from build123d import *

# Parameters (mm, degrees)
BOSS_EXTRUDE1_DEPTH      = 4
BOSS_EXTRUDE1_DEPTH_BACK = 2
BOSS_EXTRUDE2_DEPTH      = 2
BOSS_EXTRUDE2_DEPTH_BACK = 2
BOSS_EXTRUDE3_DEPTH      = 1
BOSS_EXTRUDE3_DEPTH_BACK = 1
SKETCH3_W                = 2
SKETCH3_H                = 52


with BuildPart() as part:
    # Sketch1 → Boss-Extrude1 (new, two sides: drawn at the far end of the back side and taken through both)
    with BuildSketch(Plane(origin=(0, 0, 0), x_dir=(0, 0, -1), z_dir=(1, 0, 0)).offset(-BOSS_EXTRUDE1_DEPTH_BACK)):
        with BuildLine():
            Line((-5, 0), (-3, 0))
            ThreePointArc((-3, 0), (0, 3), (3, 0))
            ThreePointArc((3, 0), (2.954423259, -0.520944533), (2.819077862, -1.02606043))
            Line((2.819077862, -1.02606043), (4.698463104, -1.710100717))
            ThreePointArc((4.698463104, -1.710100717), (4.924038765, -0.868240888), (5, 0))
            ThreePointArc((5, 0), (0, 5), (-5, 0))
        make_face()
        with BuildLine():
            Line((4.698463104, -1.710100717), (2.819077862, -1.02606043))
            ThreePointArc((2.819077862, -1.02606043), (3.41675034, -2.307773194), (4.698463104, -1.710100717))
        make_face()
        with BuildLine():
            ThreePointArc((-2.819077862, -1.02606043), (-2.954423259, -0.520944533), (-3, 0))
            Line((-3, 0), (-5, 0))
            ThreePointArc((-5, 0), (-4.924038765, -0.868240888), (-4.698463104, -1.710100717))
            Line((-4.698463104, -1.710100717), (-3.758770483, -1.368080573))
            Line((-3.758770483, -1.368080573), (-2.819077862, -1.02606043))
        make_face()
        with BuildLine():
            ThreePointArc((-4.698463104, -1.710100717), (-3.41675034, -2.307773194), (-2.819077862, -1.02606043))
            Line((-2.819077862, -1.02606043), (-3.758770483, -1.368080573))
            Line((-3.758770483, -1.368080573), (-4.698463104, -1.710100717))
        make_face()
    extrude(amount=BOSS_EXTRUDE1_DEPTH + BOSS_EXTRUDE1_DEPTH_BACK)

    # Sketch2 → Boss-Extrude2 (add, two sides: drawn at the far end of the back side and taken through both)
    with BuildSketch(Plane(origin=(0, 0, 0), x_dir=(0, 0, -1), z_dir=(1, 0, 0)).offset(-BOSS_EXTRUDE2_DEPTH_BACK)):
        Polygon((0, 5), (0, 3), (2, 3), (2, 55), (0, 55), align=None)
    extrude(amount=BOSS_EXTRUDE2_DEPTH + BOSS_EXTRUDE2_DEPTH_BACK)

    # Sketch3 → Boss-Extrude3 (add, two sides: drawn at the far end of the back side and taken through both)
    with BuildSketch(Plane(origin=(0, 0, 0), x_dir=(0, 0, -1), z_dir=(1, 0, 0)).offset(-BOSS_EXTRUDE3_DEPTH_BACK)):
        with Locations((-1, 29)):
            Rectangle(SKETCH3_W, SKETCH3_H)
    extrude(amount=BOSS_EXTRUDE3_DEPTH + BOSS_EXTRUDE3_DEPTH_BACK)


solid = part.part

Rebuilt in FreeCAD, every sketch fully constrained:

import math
import FreeCAD as App
import Part
import Sketcher
from FreeCAD import Vector

doc = App.newDocument("Part")
body = doc.addObject("PartDesign::Body", "Body")

# Sketch on YZ plane
sketch1 = body.newObject("Sketcher::SketchObject", "Sketch")
sketch1.AttachmentSupport = (doc.getObject("YZ_Plane"), [""])
sketch1.MapMode = "FlatFace"
sketch1.addGeometry(Part.ArcOfCircle(Part.Circle(Vector(0, 0, 0), Vector(0, 0, 1), 3), math.radians(-90), math.radians(90)), False)
sketch1.addGeometry(Part.ArcOfCircle(Part.Circle(Vector(0, 0, 0), Vector(0, 0, 1), 3), math.radians(-110), math.radians(-90)), False)
sketch1.addGeometry(Part.ArcOfCircle(Part.Circle(Vector(-1.368081, -3.75877, 0), Vector(0, 0, 1), 1), math.radians(70), math.radians(250)), False)
sketch1.addGeometry(Part.ArcOfCircle(Part.Circle(Vector(0, 0, 0), Vector(0, 0, 1), 5), math.radians(-110), math.radians(-90)), False)
sketch1.addGeometry(Part.ArcOfCircle(Part.Circle(Vector(0, 0, 0), Vector(0, 0, 1), 5), math.radians(-90), math.radians(90)), False)
sketch1.addGeometry(Part.ArcOfCircle(Part.Circle(Vector(0, 0, 0), Vector(0, 0, 1), 5), math.radians(90), math.radians(110)), False)
sketch1.addGeometry(Part.ArcOfCircle(Part.Circle(Vector(-1.368081, 3.75877, 0), Vector(0, 0, 1), 1), math.radians(110), math.radians(290)), False)
sketch1.addGeometry(Part.ArcOfCircle(Part.Circle(Vector(0, 0, 0), Vector(0, 0, 1), 3), math.radians(90), math.radians(110)), False)
sketch1.addConstraint(Sketcher.Constraint("Tangent", 0, 1, 1, 2))
sketch1.addConstraint(Sketcher.Constraint("Tangent", 1, 1, 2, 1))
sketch1.addConstraint(Sketcher.Constraint("Tangent", 2, 2, 3, 1))
sketch1.addConstraint(Sketcher.Constraint("Tangent", 3, 2, 4, 1))
sketch1.addConstraint(Sketcher.Constraint("Tangent", 4, 2, 5, 1))
sketch1.addConstraint(Sketcher.Constraint("Tangent", 5, 2, 6, 1))
sketch1.addConstraint(Sketcher.Constraint("Tangent", 6, 2, 7, 2))
sketch1.addConstraint(Sketcher.Constraint("Tangent", 7, 1, 0, 2))
sketch1.addConstraint(Sketcher.Constraint("Coincident", 0, 3, -1, 1))
sketch1.addConstraint(Sketcher.Constraint("Coincident", 3, 3, -1, 1))
sketch1.addConstraint(Sketcher.Constraint("Equal", 0, 1))
sketch1.addConstraint(Sketcher.Constraint("Equal", 3, 4))
sketch1.addConstraint(Sketcher.Constraint("Equal", 4, 5))
sketch1.addConstraint(Sketcher.Constraint("Equal", 2, 6))
sketch1.addConstraint(Sketcher.Constraint("PointOnObject", 0, 1, -2))
sketch1.addConstraint(Sketcher.Constraint("PointOnObject", 3, 2, -2))
sketch1.addConstraint(Sketcher.Constraint("PointOnObject", 4, 2, -2))
sketch1.addConstraint(Sketcher.Constraint("PointOnObject", 7, 1, -2))
sketch1.addConstraint(Sketcher.Constraint("Vertical", 2, 3, 6, 3))
sketch1.addConstraint(Sketcher.Constraint("Radius", 0, 3.0))
sketch1.addConstraint(Sketcher.Constraint("Radius", 2, 1.0))
sketch1.addConstraint(Sketcher.Constraint("DistanceX", 2, 2, -1, 1, 1.710101))
pad1 = body.newObject("PartDesign::Pad", "Pad")
pad1.Profile = sketch1
pad1.Type = "TwoLengths"
pad1.Length = 4
pad1.Length2 = 2

# Sketch on YZ plane
sketch2 = body.newObject("Sketcher::SketchObject", "Sketch001")
sketch2.AttachmentSupport = (doc.getObject("YZ_Plane"), [""])
sketch2.MapMode = "FlatFace"
sketch2.addGeometry(Part.LineSegment(Vector(3, 0, 0), Vector(3, -2, 0)), False)
sketch2.addGeometry(Part.LineSegment(Vector(3, -2, 0), Vector(55, -2, 0)), False)
sketch2.addGeometry(Part.LineSegment(Vector(55, -2, 0), Vector(55, 0, 0)), False)
sketch2.addGeometry(Part.LineSegment(Vector(55, 0, 0), Vector(3, 0, 0)), False)
sketch2.addConstraint(Sketcher.Constraint("Coincident", 0, 2, 1, 1))
sketch2.addConstraint(Sketcher.Constraint("Coincident", 1, 2, 2, 1))
sketch2.addConstraint(Sketcher.Constraint("Coincident", 2, 2, 3, 1))
sketch2.addConstraint(Sketcher.Constraint("Coincident", 3, 2, 0, 1))
sketch2.addConstraint(Sketcher.Constraint("Vertical", 0))
sketch2.addConstraint(Sketcher.Constraint("Horizontal", 1))
sketch2.addConstraint(Sketcher.Constraint("Vertical", 2))
sketch2.addConstraint(Sketcher.Constraint("Horizontal", 3))
sketch2.addConstraint(Sketcher.Constraint("PointOnObject", 2, 2, -1))
sketch2.addConstraint(Sketcher.Constraint("DistanceX", 1, 1, 1, 2, 52.0))
sketch2.addConstraint(Sketcher.Constraint("DistanceY", 0, 2, 0, 1, 2.0))
sketch2.addConstraint(Sketcher.Constraint("DistanceX", -1, 1, 0, 2, 3.0))
pad2 = body.newObject("PartDesign::Pad", "Pad001")
pad2.Profile = sketch2
pad2.Type = "TwoLengths"
pad2.Length = 2
pad2.Length2 = 2

# Sketch on YZ plane
sketch3 = body.newObject("Sketcher::SketchObject", "Sketch002")
sketch3.AttachmentSupport = (doc.getObject("YZ_Plane"), [""])
sketch3.MapMode = "FlatFace"
sketch3.addGeometry(Part.LineSegment(Vector(55, 2, 0), Vector(3, 2, 0)), False)
sketch3.addGeometry(Part.LineSegment(Vector(3, 2, 0), Vector(3, 0, 0)), False)
sketch3.addGeometry(Part.LineSegment(Vector(3, 0, 0), Vector(55, 0, 0)), False)
sketch3.addGeometry(Part.LineSegment(Vector(55, 0, 0), Vector(55, 2, 0)), False)
sketch3.addConstraint(Sketcher.Constraint("Coincident", 0, 2, 1, 1))
sketch3.addConstraint(Sketcher.Constraint("Coincident", 1, 2, 2, 1))
sketch3.addConstraint(Sketcher.Constraint("Coincident", 2, 2, 3, 1))
sketch3.addConstraint(Sketcher.Constraint("Coincident", 3, 2, 0, 1))
sketch3.addConstraint(Sketcher.Constraint("Horizontal", 0))
sketch3.addConstraint(Sketcher.Constraint("Vertical", 1))
sketch3.addConstraint(Sketcher.Constraint("Horizontal", 2))
sketch3.addConstraint(Sketcher.Constraint("Vertical", 3))
sketch3.addConstraint(Sketcher.Constraint("PointOnObject", 1, 2, -1))
sketch3.addConstraint(Sketcher.Constraint("DistanceX", 0, 2, 0, 1, 52.0))
sketch3.addConstraint(Sketcher.Constraint("DistanceY", 1, 2, 1, 1, 2.0))
sketch3.addConstraint(Sketcher.Constraint("DistanceX", -1, 1, 0, 2, 3.0))
pad3 = body.newObject("PartDesign::Pad", "Pad002")
pad3.Profile = sketch3
pad3.Type = "TwoLengths"
pad3.Length = 1
pad3.Length2 = 1

doc.recompute()
